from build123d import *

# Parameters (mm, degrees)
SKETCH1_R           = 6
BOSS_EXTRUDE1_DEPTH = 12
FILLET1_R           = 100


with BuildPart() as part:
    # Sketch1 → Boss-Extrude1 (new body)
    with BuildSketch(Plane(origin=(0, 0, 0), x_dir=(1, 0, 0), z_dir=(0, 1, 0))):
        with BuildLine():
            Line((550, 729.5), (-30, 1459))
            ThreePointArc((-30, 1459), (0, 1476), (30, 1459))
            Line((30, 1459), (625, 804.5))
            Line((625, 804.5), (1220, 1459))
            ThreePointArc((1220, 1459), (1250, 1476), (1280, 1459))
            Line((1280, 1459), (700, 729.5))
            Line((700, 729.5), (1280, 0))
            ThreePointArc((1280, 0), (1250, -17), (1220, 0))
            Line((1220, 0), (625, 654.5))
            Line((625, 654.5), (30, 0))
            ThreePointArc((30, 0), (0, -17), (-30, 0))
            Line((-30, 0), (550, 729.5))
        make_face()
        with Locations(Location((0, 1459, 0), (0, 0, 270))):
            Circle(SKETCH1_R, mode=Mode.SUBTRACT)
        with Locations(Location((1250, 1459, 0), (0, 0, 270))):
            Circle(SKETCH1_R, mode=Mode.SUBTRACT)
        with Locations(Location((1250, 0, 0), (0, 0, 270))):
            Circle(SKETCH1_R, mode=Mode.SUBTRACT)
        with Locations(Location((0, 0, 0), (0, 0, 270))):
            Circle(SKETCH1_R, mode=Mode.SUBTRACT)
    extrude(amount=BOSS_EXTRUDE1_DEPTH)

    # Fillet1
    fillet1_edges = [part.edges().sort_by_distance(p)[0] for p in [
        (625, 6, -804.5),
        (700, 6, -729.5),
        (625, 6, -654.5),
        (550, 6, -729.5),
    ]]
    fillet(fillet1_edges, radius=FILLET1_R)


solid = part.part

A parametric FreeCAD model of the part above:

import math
import FreeCAD as App
import Part
import Sketcher


def edges_at(feature, points):
    """Names of the edges that pass closest to the given points."""
    edges = feature.Shape.Edges
    near = lambda p: min(range(len(edges)), key=lambda i: edges[i].distToShape(Part.Vertex(*p))[0])
    return sorted({f"Edge{near(p) + 1}" for p in points})

doc = App.newDocument("Part")
body = doc.addObject("PartDesign::Body", "Body")

sketch1 = doc.addObject("Sketcher::SketchObject", "Sketch")
body.addObject(sketch1)
sketch1.AttachmentSupport = (doc.XZ_Plane, [""])
sketch1.MapMode = "FlatFace"
sketch1.addGeometry(Part.LineSegment(App.Vector(-30, -1459, 0), App.Vector(550, -730, 0)), False)
sketch1.addGeometry(Part.LineSegment(App.Vector(550, -730, 0), App.Vector(-30, 0, 0)), False)
sketch1.addGeometry(Part.ArcOfCircle(Part.Circle(App.Vector(0, -18, 0), App.Vector(0, 0, 1), 35), math.radians(31), math.radians(149)), False)
sketch1.addGeometry(Part.LineSegment(App.Vector(30, 0, 0), App.Vector(625, -654, 0)), False)
sketch1.addGeometry(Part.LineSegment(App.Vector(625, -654, 0), App.Vector(1220, 0, 0)), False)
sketch1.addGeometry(Part.ArcOfCircle(Part.Circle(App.Vector(1250, -18, 0), App.Vector(0, 0, 1), 35), math.radians(31), math.radians(149)), False)
sketch1.addGeometry(Part.LineSegment(App.Vector(1280, 0, 0), App.Vector(700, -730, 0)), False)
sketch1.addGeometry(Part.LineSegment(App.Vector(700, -730, 0), App.Vector(1280, -1459, 0)), False)
sketch1.addGeometry(Part.ArcOfCircle(Part.Circle(App.Vector(1250, -1441, 0), App.Vector(0, 0, 1), 35), math.radians(-149), math.radians(-31)), False)
sketch1.addGeometry(Part.LineSegment(App.Vector(1220, -1459, 0), App.Vector(625, -804, 0)), False)
sketch1.addGeometry(Part.LineSegment(App.Vector(625, -804, 0), App.Vector(30, -1459, 0)), False)
sketch1.addGeometry(Part.ArcOfCircle(Part.Circle(App.Vector(0, -1441, 0), App.Vector(0, 0, 1), 35), math.radians(-149), math.radians(-31)), False)
sketch1.addGeometry(Part.Circle(App.Vector(1250, 0, 0), App.Vector(0, 0, 1), 6), False)
sketch1.addGeometry(Part.Circle(App.Vector(0, 0, 0), App.Vector(0, 0, 1), 6), False)
sketch1.addGeometry(Part.Circle(App.Vector(1250, -1459, 0), App.Vector(0, 0, 1), 6), False)
sketch1.addGeometry(Part.Circle(App.Vector(0, -1459, 0), App.Vector(0, 0, 1), 6), False)
sketch1.addConstraint(Sketcher.Constraint("Coincident", 0, 2, 1, 1))
sketch1.addConstraint(Sketcher.Constraint("Coincident", 1, 2, 2, 2))
sketch1.addConstraint(Sketcher.Constraint("Coincident", 2, 1, 3, 1))
sketch1.addConstraint(Sketcher.Constraint("Coincident", 3, 2, 4, 1))
sketch1.addConstraint(Sketcher.Constraint("Coincident", 4, 2, 5, 2))
sketch1.addConstraint(Sketcher.Constraint("Coincident", 5, 1, 6, 1))
sketch1.addConstraint(Sketcher.Constraint("Coincident", 6, 2, 7, 1))
sketch1.addConstraint(Sketcher.Constraint("Coincident", 7, 2, 8, 2))
sketch1.addConstraint(Sketcher.Constraint("Coincident", 8, 1, 9, 1))
sketch1.addConstraint(Sketcher.Constraint("Coincident", 9, 2, 10, 1))
sketch1.addConstraint(Sketcher.Constraint("Coincident", 10, 2, 11, 2))
sketch1.addConstraint(Sketcher.Constraint("Coincident", 11, 1, 0, 1))
sketch1.addConstraint(Sketcher.Constraint("Coincident", 13, 3, -1, 1))
sketch1.addConstraint(Sketcher.Constraint("Equal", 2, 5))
sketch1.addConstraint(Sketcher.Constraint("Equal", 5, 8))
sketch1.addConstraint(Sketcher.Constraint("Equal", 8, 11))
sketch1.addConstraint(Sketcher.Constraint("Equal", 12, 13))
sketch1.addConstraint(Sketcher.Constraint("Equal", 13, 14))
sketch1.addConstraint(Sketcher.Constraint("Equal", 14, 15))
sketch1.addConstraint(Sketcher.Constraint("Symmetric", 1, 2, 2, 1, -1, 1))
sketch1.addConstraint(Sketcher.Constraint("Symmetric", 10, 2, 11, 1, -2))
sketch1.addConstraint(Sketcher.Constraint("PointOnObject", 2, 3, -2))
sketch1.addConstraint(Sketcher.Constraint("PointOnObject", 12, 3, -1))
sketch1.addConstraint(Sketcher.Constraint("PointOnObject", 15, 3, -2))
sketch1.addConstraint(Sketcher.Constraint("PointOnObject", 4, 2, -1))
sketch1.addConstraint(Sketcher.Constraint("PointOnObject", 5, 1, -1))
sketch1.addConstraint(Sketcher.Constraint("Parallel", 0, 6))
sketch1.addConstraint(Sketcher.Constraint("Parallel", 1, 7))
sketch1.addConstraint(Sketcher.Constraint("Parallel", 3, 9))
sketch1.addConstraint(Sketcher.Constraint("Parallel", 4, 10))
sketch1.addConstraint(Sketcher.Constraint("Horizontal", 2, 3, 5, 3))
sketch1.addConstraint(Sketcher.Constraint("Horizontal", 8, 3, 11, 3))
sketch1.addConstraint(Sketcher.Constraint("Horizontal", 14, 3, 15, 3))
sketch1.addConstraint(Sketcher.Constraint("Horizontal", 0, 2, 6, 2))
sketch1.addConstraint(Sketcher.Constraint("Horizontal", 15, 3, 7, 2))
sketch1.addConstraint(Sketcher.Constraint("Horizontal", 7, 2, 8, 1))
sketch1.addConstraint(Sketcher.Constraint("Horizontal", 8, 1, 10, 2))
sketch1.addConstraint(Sketcher.Constraint("Vertical", 5, 3, 8, 3))
sketch1.addConstraint(Sketcher.Constraint("Vertical", 8, 3, 12, 3))
sketch1.addConstraint(Sketcher.Constraint("Vertical", 12, 3, 14, 3))
sketch1.addConstraint(Sketcher.Constraint("Vertical", 5, 1, 7, 2))
sketch1.addConstraint(Sketcher.Constraint("Vertical", 3, 2, 9, 2))
sketch1.addConstraint(Sketcher.Constraint("Diameter", 12, 12.0))
sketch1.addConstraint(Sketcher.Constraint("DistanceX", -1, 1, 5, 3, 1250.0))
sketch1.addConstraint(Sketcher.Constraint("DistanceY", 14, 3, -1, 1, 1459.0))
sketch1.addConstraint(Sketcher.Constraint("DistanceX", -1, 1, 0, 2, 550.0))
sketch1.addConstraint(Sketcher.Constraint("DistanceX", 1, 2, -1, 1, 30.0))
sketch1.addConstraint(Sketcher.Constraint("DistanceY", 0, 2, 3, 2, 75.0))
sketch1.addConstraint(Sketcher.Constraint("Radius", 2, 34.970588))
pad1 = doc.addObject("PartDesign::Pad", "Pad")
body.addObject(pad1)
pad1.Profile = sketch1
pad1.Length = 12
pad1.Reversed = True
doc.recompute()

fillet = doc.addObject("PartDesign::Fillet", "Fillet")
body.addObject(fillet)
fillet.Base = (pad1, edges_at(pad1, [
    (625, 6, -804.5),
    (700, 6, -729.5),
    (625, 6, -654.5),
    (550, 6, -729.5),
]))
fillet.Radius = 100

doc.recompute()
